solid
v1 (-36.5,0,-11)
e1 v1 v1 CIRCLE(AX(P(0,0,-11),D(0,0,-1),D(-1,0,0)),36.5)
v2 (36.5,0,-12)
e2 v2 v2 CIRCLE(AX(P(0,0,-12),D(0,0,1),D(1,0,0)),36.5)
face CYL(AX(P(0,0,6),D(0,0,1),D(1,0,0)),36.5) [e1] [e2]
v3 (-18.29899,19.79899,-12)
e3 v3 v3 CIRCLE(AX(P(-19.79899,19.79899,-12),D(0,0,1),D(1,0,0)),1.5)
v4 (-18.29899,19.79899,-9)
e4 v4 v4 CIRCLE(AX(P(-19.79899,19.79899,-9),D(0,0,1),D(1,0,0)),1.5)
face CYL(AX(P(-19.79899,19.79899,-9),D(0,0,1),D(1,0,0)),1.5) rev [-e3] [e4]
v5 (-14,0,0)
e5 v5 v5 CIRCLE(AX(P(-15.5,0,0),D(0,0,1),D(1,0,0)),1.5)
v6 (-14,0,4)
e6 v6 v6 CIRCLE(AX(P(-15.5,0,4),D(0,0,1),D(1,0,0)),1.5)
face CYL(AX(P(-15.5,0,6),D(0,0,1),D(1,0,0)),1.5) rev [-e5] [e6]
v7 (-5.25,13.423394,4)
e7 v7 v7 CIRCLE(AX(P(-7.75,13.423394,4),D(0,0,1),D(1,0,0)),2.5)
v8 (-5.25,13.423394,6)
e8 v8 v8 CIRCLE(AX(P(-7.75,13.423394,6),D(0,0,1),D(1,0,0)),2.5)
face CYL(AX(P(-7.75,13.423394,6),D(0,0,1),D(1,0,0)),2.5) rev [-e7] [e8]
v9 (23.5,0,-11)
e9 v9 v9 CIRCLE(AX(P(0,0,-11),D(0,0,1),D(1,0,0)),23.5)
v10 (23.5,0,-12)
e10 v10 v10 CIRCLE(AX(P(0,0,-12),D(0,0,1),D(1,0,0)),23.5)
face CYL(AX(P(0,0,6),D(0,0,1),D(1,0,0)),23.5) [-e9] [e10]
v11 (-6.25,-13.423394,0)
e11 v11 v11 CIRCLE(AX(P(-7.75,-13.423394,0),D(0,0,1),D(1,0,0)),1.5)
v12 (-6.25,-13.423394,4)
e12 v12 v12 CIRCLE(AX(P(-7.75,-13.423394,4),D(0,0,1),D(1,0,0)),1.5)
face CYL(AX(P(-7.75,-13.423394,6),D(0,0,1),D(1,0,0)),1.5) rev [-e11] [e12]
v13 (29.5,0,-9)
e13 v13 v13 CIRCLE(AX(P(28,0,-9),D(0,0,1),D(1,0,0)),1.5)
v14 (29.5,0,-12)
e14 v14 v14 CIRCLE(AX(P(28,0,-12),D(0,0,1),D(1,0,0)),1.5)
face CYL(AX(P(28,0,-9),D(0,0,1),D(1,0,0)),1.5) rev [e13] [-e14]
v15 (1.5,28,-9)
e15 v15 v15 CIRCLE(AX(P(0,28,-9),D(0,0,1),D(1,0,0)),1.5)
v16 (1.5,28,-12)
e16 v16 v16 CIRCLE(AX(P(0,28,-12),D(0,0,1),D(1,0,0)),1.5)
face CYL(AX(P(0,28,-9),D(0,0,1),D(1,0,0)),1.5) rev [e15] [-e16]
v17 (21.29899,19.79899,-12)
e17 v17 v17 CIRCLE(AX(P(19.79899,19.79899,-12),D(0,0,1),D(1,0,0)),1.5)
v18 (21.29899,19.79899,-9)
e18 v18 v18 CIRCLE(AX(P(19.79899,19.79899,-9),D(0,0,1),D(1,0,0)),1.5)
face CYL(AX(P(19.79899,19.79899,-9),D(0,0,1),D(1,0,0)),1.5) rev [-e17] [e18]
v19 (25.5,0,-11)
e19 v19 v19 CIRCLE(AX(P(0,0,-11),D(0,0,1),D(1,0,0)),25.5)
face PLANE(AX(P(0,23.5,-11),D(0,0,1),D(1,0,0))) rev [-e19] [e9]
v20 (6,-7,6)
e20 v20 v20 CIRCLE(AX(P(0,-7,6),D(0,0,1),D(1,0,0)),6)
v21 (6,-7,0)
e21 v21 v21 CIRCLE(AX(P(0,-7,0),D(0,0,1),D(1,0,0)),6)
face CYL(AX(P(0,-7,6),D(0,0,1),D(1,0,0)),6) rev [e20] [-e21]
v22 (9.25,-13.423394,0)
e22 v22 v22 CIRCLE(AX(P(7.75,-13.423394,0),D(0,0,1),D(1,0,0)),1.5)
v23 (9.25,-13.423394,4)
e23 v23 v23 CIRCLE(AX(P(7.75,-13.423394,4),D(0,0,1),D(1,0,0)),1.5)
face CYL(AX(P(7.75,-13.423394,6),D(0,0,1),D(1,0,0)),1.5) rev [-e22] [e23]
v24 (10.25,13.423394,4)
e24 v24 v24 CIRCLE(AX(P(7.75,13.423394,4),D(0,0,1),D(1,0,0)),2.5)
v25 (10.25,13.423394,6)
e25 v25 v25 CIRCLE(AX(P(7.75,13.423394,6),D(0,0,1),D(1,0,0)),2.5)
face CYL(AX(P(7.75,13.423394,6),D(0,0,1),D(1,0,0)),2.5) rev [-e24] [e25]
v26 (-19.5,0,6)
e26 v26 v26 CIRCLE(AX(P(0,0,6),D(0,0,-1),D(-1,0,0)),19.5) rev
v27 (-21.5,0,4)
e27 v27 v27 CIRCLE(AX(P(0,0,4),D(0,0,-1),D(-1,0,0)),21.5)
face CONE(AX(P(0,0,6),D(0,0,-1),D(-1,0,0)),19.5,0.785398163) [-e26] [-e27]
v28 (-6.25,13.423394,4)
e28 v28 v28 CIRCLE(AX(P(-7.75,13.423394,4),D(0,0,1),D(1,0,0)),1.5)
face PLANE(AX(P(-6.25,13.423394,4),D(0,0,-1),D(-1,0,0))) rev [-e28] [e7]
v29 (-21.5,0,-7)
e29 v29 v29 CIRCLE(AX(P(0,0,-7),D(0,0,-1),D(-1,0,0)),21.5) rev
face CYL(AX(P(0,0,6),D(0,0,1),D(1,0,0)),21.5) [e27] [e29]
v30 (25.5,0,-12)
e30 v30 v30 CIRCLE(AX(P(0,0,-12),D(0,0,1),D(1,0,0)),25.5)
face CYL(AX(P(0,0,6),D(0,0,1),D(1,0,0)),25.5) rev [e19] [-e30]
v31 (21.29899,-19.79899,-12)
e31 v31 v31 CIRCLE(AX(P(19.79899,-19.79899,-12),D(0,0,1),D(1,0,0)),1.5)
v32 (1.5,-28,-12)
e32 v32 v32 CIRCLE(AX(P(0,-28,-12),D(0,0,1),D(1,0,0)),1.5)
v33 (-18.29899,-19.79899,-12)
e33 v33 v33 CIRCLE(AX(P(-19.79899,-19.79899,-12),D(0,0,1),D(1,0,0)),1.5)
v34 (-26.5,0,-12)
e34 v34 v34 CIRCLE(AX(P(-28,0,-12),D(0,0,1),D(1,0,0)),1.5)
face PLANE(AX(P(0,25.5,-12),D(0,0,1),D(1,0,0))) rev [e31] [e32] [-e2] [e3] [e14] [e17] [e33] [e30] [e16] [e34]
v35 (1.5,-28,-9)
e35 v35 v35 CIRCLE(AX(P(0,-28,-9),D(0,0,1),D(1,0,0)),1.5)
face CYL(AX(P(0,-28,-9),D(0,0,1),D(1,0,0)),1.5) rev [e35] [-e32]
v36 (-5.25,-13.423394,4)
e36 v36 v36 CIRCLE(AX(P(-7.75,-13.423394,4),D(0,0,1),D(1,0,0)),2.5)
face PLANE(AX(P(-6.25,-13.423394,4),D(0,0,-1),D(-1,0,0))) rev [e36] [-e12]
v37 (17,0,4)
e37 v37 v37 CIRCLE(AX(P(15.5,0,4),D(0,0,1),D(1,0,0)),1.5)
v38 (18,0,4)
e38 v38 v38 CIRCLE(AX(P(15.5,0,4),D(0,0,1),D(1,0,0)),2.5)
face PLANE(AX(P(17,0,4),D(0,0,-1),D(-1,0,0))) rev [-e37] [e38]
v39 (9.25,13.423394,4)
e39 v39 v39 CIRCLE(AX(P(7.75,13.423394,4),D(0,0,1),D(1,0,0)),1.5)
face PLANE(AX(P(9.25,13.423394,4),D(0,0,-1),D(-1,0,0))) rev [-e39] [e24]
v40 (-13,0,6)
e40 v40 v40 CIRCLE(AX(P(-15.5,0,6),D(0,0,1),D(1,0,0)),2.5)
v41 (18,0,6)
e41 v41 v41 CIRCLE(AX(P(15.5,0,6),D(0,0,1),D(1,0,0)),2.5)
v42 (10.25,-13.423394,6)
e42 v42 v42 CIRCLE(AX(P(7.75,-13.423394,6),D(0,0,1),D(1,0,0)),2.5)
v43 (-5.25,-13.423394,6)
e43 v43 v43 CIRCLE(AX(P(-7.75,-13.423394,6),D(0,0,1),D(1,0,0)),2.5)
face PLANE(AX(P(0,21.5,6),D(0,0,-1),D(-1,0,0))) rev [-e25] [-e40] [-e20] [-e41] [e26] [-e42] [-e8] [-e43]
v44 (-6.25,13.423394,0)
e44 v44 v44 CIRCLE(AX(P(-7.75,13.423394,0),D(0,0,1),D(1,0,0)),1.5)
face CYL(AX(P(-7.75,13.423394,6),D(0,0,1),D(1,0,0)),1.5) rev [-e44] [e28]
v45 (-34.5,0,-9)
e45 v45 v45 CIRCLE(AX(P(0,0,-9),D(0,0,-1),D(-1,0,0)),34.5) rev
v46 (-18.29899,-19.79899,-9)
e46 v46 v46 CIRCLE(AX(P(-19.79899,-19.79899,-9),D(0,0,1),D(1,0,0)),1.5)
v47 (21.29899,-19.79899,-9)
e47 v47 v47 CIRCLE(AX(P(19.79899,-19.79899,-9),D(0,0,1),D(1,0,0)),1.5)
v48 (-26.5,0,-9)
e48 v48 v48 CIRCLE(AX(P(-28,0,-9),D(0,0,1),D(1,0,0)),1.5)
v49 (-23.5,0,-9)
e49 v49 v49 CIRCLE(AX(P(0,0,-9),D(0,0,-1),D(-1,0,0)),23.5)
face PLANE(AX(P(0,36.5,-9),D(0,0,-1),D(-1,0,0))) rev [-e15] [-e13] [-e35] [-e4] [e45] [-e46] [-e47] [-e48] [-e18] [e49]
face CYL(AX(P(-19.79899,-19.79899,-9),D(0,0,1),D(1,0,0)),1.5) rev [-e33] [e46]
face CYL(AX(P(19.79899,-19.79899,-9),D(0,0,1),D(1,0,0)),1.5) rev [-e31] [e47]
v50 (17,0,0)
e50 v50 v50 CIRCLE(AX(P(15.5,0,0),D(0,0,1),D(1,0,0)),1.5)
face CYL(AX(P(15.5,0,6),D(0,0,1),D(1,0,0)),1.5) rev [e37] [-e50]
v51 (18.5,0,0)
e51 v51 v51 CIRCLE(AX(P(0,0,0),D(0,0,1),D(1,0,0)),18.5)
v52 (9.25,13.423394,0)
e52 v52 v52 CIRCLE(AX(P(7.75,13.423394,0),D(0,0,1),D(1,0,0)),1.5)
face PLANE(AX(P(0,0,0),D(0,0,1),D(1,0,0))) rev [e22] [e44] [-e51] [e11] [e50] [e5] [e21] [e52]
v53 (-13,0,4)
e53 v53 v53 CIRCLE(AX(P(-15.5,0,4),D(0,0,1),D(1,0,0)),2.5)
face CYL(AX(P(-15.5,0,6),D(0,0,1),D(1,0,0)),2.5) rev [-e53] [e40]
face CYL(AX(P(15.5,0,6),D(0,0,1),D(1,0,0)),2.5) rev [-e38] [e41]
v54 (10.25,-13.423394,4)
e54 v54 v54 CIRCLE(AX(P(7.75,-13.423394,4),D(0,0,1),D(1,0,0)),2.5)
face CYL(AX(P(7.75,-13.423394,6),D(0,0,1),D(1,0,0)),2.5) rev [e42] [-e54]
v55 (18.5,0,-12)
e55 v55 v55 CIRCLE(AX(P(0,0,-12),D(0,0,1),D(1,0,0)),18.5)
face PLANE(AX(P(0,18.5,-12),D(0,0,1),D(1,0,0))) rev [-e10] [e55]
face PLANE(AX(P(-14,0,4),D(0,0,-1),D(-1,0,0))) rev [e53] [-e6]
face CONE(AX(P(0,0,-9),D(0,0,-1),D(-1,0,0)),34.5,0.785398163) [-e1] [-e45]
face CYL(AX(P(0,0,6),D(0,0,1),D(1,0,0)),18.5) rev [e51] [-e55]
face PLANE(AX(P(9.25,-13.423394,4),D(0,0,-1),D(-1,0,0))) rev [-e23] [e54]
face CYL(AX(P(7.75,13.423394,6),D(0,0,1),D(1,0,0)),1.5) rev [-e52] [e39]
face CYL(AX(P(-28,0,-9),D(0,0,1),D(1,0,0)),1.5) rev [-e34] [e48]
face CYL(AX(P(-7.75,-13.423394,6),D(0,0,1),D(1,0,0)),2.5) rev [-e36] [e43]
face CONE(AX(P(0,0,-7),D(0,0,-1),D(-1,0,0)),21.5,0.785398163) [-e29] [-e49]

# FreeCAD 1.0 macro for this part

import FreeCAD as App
import Part
import Sketcher
from FreeCAD import Vector
Q = App.Units.Quantity


def edges_at(feature, points):
    """Names of the edges that pass closest to the given points."""
    edges = feature.Shape.Edges
    near = lambda p: min(range(len(edges)), key=lambda i: edges[i].distToShape(Part.Vertex(*p))[0])
    return sorted({f"Edge{near(p) + 1}" for p in points})


def add_polygon(sketch, points):
    """Adds a closed chain of lines whose ends are joined by coincident constraints."""
    first, n = sketch.GeometryCount, len(points)
    for a, b in zip(points, points[1:] + points[:1]):
        sketch.addGeometry(Part.LineSegment(App.Vector(*a, 0), App.Vector(*b, 0)), False)
    for i in range(n):
        sketch.addConstraint(Sketcher.Constraint("Coincident", first + i, 2, first + (i + 1) % n, 1))

doc = App.newDocument("Part")
body = doc.addObject("PartDesign::Body", "Body")

# Sketch on YZ plane
sketch1 = doc.addObject("Sketcher::SketchObject", "Sketch")
body.addObject(sketch1)
sketch1.AttachmentSupport = (doc.YZ_Plane, [""])
sketch1.MapMode = "FlatFace"
add_polygon(sketch1, [(0, 0), (18.5, 0), (18.5, -12), (23.5, -12), (23.5, -11), (25.5, -11), (25.5, -12), (36.5, -12), (36.5, -9), (21.5, -9), (21.5, 6), (0, 6)])  # lines 0-11
sketch1.addConstraint([
    Sketcher.Constraint("Horizontal", 0),
    Sketcher.Constraint("Vertical", 1),
    Sketcher.Constraint("Horizontal", 2),
    Sketcher.Constraint("Vertical", 3),
    Sketcher.Constraint("Horizontal", 4),
    Sketcher.Constraint("Vertical", 5),
    Sketcher.Constraint("Horizontal", 6),
    Sketcher.Constraint("Vertical", 7),
    Sketcher.Constraint("Horizontal", 8),
    Sketcher.Constraint("Vertical", 9),
    Sketcher.Constraint("Horizontal", 10),
    Sketcher.Constraint("Vertical", 11),
    Sketcher.Constraint("Coincident", 11, 2, -1, 1),
    Sketcher.Constraint("Horizontal", 2, 2, 5, 2),
    Sketcher.Constraint("Equal", 8, 9),
    Sketcher.Constraint("DistanceX", 2, 1, 2, 2, 5.0),
    Sketcher.Constraint("DistanceX", 4, 1, 4, 2, 2.0),
    Sketcher.Constraint("DistanceX", 6, 1, 6, 2, 11.0),
    Sketcher.Constraint("DistanceX", 8, 2, 8, 1, 15.0),
    Sketcher.Constraint("DistanceY", 1, 2, 1, 1, 12.0),
    Sketcher.Constraint("DistanceY", 3, 1, 3, 2, 1.0),
    Sketcher.Constraint("DistanceY", 7, 1, 7, 2, 3.0),
    Sketcher.Constraint("DistanceX", 0, 1, 0, 2, 18.5),
])
revolution = doc.addObject("PartDesign::Revolution", "Revolution")
body.addObject(revolution)
revolution.Profile = sketch1
revolution.ReferenceAxis = (sketch1, ["V_Axis"])
revolution.Angle = 360

# Sketch on XY plane
sketch2 = doc.addObject("Sketcher::SketchObject", "Sketch001")
body.addObject(sketch2)
sketch2.AttachmentSupport = (doc.XY_Plane, [""])
sketch2.MapMode = "FlatFace"
sketch2.AttachmentOffset = App.Placement(Vector(0, 0, 6), App.Rotation())
sketch2.addGeometry(Part.Circle(Vector(15.5, 0, 0), Vector(0, 0, 1), 1.5), False)
sketch2.addConstraint([
    Sketcher.Constraint("PointOnObject", 0, 3, -1),
    Sketcher.Constraint("Diameter", 0, 3.0),
    Sketcher.Constraint("DistanceX", -1, 1, 0, 3, 15.5),
])
doc.recompute()
hole = doc.addObject("PartDesign::Hole", "Hole")
body.addObject(hole)
hole.Profile = sketch2
hole.ThreadType = "None"
hole.Diameter = 3
hole.DepthType = "ThroughAll"
hole.HoleCutType = "Counterbore"
hole.HoleCutDiameter = 5
hole.HoleCutDepth = 2
doc.recompute()

polarpattern = doc.addObject("PartDesign::PolarPattern", "PolarPattern")
body.addObject(polarpattern)
polarpattern.Originals = [hole]
polarpattern.Axis = (doc.Z_Axis, [""])
polarpattern.Angle = 360
polarpattern.Occurrences = 6
body.Tip = polarpattern

# Sketch on XY plane
sketch3 = doc.addObject("Sketcher::SketchObject", "Sketch002")
body.addObject(sketch3)
sketch3.AttachmentSupport = (doc.XY_Plane, [""])
sketch3.MapMode = "FlatFace"
sketch3.AttachmentOffset = App.Placement(Vector(0, 0, 6), App.Rotation())
sketch3.addGeometry(Part.Circle(Vector(0, -7, 0), Vector(0, 0, 1), 6), False)
sketch3.addConstraint([
    Sketcher.Constraint("PointOnObject", 0, 3, -2),
    Sketcher.Constraint("Diameter", 0, 12.0),
    Sketcher.Constraint("DistanceY", 0, 3, -1, 1, 7.0),
])
doc.recompute()
hole2 = doc.addObject("PartDesign::Hole", "Hole001")
body.addObject(hole2)
hole2.Profile = sketch3
hole2.ThreadType = "None"
hole2.Diameter = 12
hole2.DepthType = "Dimension"
hole2.Depth = 15
hole2.DrillPoint = "Angled"
hole2.DrillPointAngle = 118
doc.recompute()

chamfer = doc.addObject("PartDesign::Chamfer", "Chamfer")
body.addObject(chamfer)
chamfer.Base = (hole2, edges_at(hole2, [(0, -21.5, 6), (0, -21.5, -9), (0, -36.5, -9)]))
chamfer.Size = 2

# Sketch on YZ plane
sketch4 = doc.addObject("Sketcher::SketchObject", "Sketch003")
body.addObject(sketch4)
sketch4.AttachmentSupport = (doc.YZ_Plane, [""])
sketch4.MapMode = "FlatFace"
add_polygon(sketch4, [(28, -24.9), (28, -9), (26.5, -9), (26.5, -24)])  # lines 0-3
sketch4.addGeometry(Part.LineSegment(Vector(28, -9, 0), Vector(28, -24.9, 0)), True)  # axis
sketch4.addConstraint([
    Sketcher.Constraint("Vertical", 0),
    Sketcher.Constraint("Horizontal", 1),
    Sketcher.Constraint("Vertical", 2),
    Sketcher.Constraint("Vertical", 4),
    Sketcher.Constraint("Coincident", 4, 1, 0, 2),
    Sketcher.Constraint("Equal", 0, 4),
    Sketcher.Constraint("DistanceY", 2, 2, 2, 1, 15.0),
    Sketcher.Constraint("Angle", 3, Q("-31 deg")),
    Sketcher.Constraint("DistanceX", 1, 2, 1, 1, 1.5),
    Sketcher.Constraint("DistanceX", -1, 1, 0, 2, 28.0),
    Sketcher.Constraint("DistanceY", 0, 2, -1, 1, 9.0),
])
groove = doc.addObject("PartDesign::Groove", "Groove")
body.addObject(groove)
groove.Profile = sketch4
groove.ReferenceAxis = (sketch4, ["Axis0"])
groove.Angle = 360
doc.recompute()

polarpattern2 = doc.addObject("PartDesign::PolarPattern", "PolarPattern001")
body.addObject(polarpattern2)
polarpattern2.Originals = [groove]
polarpattern2.Axis = (doc.Z_Axis, [""])
polarpattern2.Angle = 360
polarpattern2.Occurrences = 8
body.Tip = polarpattern2

doc.recompute()
